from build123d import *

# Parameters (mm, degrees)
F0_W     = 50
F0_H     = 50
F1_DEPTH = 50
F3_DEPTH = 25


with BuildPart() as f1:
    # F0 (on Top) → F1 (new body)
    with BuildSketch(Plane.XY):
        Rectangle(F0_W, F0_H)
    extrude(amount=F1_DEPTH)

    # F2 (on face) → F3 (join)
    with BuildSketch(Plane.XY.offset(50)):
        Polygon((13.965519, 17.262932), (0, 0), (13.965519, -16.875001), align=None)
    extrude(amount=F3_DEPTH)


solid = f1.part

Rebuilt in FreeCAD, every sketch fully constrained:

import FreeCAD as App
import Part
import Sketcher
Q = App.Units.Quantity

doc = App.newDocument("Part")
params = doc.addObject("Spreadsheet::Sheet", "Params")
for row, (alias, value) in enumerate([
    ("sketch1_width", "50 mm"),
    ("pad1_length", "50 mm"),
    ("pad2_length", "25 mm"),
], start=1):
    params.set(f"A{row}", alias)
    params.set(f"B{row}", "=" + value)
    params.setAlias(f"B{row}", alias)

body = doc.addObject("PartDesign::Body", "Body")

sketch1 = body.newObject("Sketcher::SketchObject", "Sketch")
sketch1.AttachmentSupport = (doc.getObject("XY_Plane"), [""])
sketch1.MapMode = "FlatFace"
sketch1.addGeometry([
    Part.LineSegment(App.Vector(-25, 25, 0), App.Vector(-25, -25, 0)),
    Part.LineSegment(App.Vector(-25, -25, 0), App.Vector(25, -25, 0)),
    Part.LineSegment(App.Vector(25, -25, 0), App.Vector(25, 25, 0)),
    Part.LineSegment(App.Vector(25, 25, 0), App.Vector(-25, 25, 0)),
], False)
sketch1.addConstraint([
    Sketcher.Constraint("Coincident", 0, 2, 1, 1),
    Sketcher.Constraint("Coincident", 1, 2, 2, 1),
    Sketcher.Constraint("Coincident", 2, 2, 3, 1),
    Sketcher.Constraint("Coincident", 3, 2, 0, 1),
    Sketcher.Constraint("Vertical", 0),
    Sketcher.Constraint("Horizontal", 1),
    Sketcher.Constraint("Vertical", 2),
    Sketcher.Constraint("Horizontal", 3),
    Sketcher.Constraint("Symmetric", 0, 2, 2, 2, -1, 1),
    Sketcher.Constraint("Equal", 3, 0),
    Sketcher.Constraint("DistanceX", 1, 1, 1, 2, Q("50 mm")),
])
sketch1.setExpression("Constraints[10]", "Params.sketch1_width")
pad1 = body.newObject("PartDesign::Pad", "Pad")
pad1.Profile = sketch1
pad1.setExpression("Length", "Params.pad1_length")

sketch2 = body.newObject("Sketcher::SketchObject", "Sketch001")
sketch2.AttachmentSupport = (doc.getObject("XY_Plane"), [""])
sketch2.MapMode = "FlatFace"
sketch2.AttachmentOffset = App.Placement(App.Vector(0, 0, 50), App.Rotation())
sketch2.addGeometry([
    Part.LineSegment(App.Vector(14, 17, 0), App.Vector(0, 0, 0)),
    Part.LineSegment(App.Vector(0, 0, 0), App.Vector(14, -17, 0)),
    Part.LineSegment(App.Vector(14, -17, 0), App.Vector(14, 17, 0)),
], False)
sketch2.addConstraint([
    Sketcher.Constraint("Coincident", 0, 2, 1, 1),
    Sketcher.Constraint("Coincident", 1, 2, 2, 1),
    Sketcher.Constraint("Coincident", 2, 2, 0, 1),
    Sketcher.Constraint("Vertical", 2),
    Sketcher.Constraint("Coincident", 0, 2, -1, 1),
    Sketcher.Constraint("DistanceY", 1, 2, -1, 1, Q("16.875001 mm")),
    Sketcher.Constraint("Distance", 1, Q("21.904369 mm")),
    Sketcher.Constraint("DistanceY", 2, 1, 2, 2, Q("34.137933 mm")),
])
pad2 = body.newObject("PartDesign::Pad", "Pad001")
pad2.Profile = sketch2
pad2.setExpression("Length", "Params.pad2_length")

doc.recompute()
